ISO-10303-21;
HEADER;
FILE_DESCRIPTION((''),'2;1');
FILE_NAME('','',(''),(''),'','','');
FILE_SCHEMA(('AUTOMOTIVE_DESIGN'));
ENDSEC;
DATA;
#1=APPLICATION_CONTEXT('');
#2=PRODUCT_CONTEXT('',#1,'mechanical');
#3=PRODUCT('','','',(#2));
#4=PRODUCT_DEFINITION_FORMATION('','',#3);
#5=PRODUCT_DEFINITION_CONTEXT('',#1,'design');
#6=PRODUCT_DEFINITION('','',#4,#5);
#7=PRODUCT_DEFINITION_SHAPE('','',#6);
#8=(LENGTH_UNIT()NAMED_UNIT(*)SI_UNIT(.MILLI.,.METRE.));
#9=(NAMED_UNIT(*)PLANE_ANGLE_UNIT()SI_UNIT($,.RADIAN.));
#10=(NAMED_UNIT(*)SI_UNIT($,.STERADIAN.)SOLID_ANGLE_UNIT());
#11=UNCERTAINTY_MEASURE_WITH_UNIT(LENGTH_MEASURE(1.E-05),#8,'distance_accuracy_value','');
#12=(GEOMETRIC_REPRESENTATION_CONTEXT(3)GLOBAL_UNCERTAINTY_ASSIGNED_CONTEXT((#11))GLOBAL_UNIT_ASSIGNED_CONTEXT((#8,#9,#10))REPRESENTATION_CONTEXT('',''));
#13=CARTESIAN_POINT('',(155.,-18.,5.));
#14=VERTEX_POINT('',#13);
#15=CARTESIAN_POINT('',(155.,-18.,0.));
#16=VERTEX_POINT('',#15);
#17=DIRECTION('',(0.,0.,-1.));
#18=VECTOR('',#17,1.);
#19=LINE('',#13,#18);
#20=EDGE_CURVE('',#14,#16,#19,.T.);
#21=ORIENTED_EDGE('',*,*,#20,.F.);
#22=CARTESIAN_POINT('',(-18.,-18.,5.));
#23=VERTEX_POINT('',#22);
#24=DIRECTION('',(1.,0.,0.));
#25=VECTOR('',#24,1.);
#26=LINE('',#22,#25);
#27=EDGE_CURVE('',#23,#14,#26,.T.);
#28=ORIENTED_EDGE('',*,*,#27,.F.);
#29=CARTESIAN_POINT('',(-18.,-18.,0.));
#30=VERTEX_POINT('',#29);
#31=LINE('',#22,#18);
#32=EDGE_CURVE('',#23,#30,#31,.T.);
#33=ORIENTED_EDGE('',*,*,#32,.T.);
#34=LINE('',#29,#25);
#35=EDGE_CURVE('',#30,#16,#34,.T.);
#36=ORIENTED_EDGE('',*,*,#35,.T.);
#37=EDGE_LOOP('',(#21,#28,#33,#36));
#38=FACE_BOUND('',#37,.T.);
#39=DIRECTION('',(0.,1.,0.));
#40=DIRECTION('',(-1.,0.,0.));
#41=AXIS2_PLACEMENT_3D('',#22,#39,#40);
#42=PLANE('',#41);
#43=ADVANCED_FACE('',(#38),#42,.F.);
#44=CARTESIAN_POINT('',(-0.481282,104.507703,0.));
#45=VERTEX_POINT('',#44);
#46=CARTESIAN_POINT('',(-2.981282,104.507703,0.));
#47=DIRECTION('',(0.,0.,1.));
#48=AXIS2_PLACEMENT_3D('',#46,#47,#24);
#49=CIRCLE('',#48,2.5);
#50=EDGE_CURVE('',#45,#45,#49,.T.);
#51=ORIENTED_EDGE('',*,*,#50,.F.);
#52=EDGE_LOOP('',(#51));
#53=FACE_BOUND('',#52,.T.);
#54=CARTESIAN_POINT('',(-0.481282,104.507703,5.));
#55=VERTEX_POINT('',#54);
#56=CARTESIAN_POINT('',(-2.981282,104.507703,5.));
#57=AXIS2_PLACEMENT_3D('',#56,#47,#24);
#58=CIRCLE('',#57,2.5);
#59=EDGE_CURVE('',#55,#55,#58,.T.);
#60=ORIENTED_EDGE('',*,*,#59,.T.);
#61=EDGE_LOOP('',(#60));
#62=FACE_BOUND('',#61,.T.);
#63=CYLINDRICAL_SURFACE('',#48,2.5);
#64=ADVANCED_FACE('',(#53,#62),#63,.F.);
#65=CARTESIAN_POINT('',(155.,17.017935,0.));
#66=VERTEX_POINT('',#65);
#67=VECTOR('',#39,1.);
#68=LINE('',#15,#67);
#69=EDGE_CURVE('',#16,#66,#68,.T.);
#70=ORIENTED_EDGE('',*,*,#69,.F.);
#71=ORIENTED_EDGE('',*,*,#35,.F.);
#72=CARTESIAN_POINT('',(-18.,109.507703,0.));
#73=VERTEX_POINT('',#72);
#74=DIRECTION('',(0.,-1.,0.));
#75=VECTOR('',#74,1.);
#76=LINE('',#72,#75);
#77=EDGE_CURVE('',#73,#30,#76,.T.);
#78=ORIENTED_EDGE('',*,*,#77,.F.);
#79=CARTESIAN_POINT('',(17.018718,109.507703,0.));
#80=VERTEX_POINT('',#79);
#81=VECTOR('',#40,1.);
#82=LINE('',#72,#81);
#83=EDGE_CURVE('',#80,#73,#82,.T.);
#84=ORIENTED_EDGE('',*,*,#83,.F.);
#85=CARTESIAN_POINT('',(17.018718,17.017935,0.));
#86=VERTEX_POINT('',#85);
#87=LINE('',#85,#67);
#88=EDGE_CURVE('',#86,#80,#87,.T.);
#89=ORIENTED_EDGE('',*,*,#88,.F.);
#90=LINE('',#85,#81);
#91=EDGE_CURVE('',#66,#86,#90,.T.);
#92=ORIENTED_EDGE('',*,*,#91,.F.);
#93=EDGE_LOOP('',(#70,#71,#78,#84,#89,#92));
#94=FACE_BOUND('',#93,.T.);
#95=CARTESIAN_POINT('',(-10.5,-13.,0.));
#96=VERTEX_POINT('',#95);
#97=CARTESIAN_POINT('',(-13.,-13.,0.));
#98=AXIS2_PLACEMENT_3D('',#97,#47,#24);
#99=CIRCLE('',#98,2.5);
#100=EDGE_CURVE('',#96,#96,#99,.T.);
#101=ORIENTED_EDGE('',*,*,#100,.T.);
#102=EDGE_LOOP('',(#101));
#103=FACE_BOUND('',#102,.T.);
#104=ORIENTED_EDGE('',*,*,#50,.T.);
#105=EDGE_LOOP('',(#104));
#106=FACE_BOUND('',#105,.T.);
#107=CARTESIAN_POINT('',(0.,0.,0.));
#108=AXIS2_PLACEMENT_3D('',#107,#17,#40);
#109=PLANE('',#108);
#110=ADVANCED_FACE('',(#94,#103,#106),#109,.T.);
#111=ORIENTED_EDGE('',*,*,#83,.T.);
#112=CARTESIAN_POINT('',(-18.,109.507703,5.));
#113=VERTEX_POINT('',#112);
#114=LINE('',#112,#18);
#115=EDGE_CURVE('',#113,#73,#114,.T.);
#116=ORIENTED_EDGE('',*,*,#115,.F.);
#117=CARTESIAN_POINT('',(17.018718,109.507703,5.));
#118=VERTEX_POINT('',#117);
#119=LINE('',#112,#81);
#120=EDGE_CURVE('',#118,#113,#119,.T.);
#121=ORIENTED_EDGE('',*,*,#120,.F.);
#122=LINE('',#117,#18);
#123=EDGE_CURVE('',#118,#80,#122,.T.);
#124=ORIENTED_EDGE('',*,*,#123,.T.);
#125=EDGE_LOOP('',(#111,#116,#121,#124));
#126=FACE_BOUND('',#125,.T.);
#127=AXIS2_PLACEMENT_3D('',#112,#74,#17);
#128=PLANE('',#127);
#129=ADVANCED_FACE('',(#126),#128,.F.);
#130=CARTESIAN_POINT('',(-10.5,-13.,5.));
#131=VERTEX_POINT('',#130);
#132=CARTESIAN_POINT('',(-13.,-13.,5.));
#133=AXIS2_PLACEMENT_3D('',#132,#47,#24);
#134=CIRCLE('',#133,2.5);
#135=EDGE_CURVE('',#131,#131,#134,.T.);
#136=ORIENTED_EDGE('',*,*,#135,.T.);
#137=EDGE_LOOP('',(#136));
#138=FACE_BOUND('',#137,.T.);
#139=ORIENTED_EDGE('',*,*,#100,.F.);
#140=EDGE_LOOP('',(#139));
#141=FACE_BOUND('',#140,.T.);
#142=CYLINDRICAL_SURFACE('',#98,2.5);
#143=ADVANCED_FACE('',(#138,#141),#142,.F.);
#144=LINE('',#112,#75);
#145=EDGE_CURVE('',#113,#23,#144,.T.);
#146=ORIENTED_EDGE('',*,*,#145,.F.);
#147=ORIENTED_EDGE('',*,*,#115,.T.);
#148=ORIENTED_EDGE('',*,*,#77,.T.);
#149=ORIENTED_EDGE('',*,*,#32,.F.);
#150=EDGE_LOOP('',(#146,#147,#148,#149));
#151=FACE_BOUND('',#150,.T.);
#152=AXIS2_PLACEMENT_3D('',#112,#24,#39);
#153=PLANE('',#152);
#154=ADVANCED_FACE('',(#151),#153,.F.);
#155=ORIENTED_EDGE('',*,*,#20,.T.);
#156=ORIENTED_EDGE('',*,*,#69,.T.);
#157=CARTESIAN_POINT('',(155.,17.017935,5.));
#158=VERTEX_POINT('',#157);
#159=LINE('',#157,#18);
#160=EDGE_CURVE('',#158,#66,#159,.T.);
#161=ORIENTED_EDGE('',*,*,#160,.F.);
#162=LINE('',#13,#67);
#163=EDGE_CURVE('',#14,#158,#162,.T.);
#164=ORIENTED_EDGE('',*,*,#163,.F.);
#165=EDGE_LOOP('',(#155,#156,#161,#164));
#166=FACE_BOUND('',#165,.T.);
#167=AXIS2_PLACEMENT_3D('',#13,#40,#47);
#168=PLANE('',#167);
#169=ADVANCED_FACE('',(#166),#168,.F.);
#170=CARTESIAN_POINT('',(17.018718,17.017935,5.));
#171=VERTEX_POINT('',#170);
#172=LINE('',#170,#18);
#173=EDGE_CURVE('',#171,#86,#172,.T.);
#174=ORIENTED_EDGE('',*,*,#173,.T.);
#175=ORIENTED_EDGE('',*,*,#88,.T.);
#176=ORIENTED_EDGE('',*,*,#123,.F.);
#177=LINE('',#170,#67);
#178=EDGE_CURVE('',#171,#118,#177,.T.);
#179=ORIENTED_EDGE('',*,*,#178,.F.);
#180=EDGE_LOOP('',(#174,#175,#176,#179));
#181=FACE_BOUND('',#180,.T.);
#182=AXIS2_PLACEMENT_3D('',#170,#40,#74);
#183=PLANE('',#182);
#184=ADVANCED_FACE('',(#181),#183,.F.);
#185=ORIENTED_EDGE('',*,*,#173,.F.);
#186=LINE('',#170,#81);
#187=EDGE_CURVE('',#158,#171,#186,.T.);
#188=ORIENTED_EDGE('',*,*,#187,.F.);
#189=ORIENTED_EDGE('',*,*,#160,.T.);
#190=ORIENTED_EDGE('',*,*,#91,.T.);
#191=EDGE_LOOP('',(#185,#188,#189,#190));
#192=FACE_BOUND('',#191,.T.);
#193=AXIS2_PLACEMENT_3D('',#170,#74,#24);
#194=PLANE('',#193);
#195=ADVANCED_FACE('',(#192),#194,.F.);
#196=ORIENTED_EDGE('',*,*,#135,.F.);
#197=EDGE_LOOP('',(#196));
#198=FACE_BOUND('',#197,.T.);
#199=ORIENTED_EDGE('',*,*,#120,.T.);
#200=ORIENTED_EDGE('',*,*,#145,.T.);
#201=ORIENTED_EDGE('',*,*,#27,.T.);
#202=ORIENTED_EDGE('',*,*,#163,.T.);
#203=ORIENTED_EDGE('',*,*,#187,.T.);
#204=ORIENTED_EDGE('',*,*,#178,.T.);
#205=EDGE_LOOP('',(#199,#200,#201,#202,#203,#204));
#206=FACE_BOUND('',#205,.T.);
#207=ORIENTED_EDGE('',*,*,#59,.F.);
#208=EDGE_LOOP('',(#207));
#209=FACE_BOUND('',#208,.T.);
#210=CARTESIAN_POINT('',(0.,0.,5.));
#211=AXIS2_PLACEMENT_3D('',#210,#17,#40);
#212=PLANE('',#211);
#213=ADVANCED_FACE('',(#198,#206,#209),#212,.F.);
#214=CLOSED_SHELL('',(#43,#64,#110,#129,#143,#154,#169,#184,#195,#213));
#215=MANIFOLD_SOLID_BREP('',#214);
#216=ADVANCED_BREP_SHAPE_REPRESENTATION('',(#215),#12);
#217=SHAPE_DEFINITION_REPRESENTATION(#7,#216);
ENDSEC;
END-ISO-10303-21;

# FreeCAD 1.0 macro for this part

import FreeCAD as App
import Part
import Sketcher
from FreeCAD import Vector

doc = App.newDocument("Part")
body = doc.addObject("PartDesign::Body", "Body")

sketch1 = doc.addObject("Sketcher::SketchObject", "Sketch")
body.addObject(sketch1)
sketch1.AttachmentSupport = (doc.XY_Plane, [""])
sketch1.MapMode = "FlatFace"
sketch1.addGeometry([
    Part.LineSegment(Vector(17.018718, 109.507703, 0), Vector(-18, 109.507703, 0)),
    Part.LineSegment(Vector(-18, 109.507703, 0), Vector(-18, -18, 0)),
    Part.LineSegment(Vector(-18, -18, 0), Vector(155, -18, 0)),
    Part.LineSegment(Vector(155, -18, 0), Vector(155, 17.017935, 0)),
    Part.LineSegment(Vector(155, 17.017935, 0), Vector(17.018718, 17.017935, 0)),
    Part.LineSegment(Vector(17.018718, 17.017935, 0), Vector(17.018718, 109.507703, 0)),
], False)
sketch1.addConstraint([
    Sketcher.Constraint("Coincident", 0, 2, 1, 1),
    Sketcher.Constraint("Coincident", 1, 2, 2, 1),
    Sketcher.Constraint("Coincident", 2, 2, 3, 1),
    Sketcher.Constraint("Coincident", 3, 2, 4, 1),
    Sketcher.Constraint("Coincident", 4, 2, 5, 1),
    Sketcher.Constraint("Coincident", 5, 2, 0, 1),
    Sketcher.Constraint("Horizontal", 0),
    Sketcher.Constraint("Vertical", 1),
    Sketcher.Constraint("Horizontal", 2),
    Sketcher.Constraint("Vertical", 3),
    Sketcher.Constraint("Horizontal", 4),
    Sketcher.Constraint("Vertical", 5),
    Sketcher.Constraint("DistanceX", 2, 1, 2, 2, 173.0),
    Sketcher.Constraint("DistanceX", 0, 2, -1, 1, 18.0),
    Sketcher.Constraint("DistanceY", 1, 2, -1, 1, 18.0),
    Sketcher.Constraint("DistanceX", 0, 2, 0, 1, 35.018718),
    Sketcher.Constraint("DistanceY", 1, 2, 1, 1, 127.507703),
    Sketcher.Constraint("DistanceY", 3, 1, 3, 2, 35.017935),
])
pad1 = doc.addObject("PartDesign::Pad", "Pad")
body.addObject(pad1)
pad1.Profile = sketch1
pad1.Length = 5

sketch2 = doc.addObject("Sketcher::SketchObject", "Sketch001")
body.addObject(sketch2)
sketch2.AttachmentSupport = (doc.XY_Plane, [""])
sketch2.MapMode = "FlatFace"
sketch2.AttachmentOffset = App.Placement(Vector(0, 0, 5), App.Rotation())
sketch2.addGeometry([
    Part.Circle(Vector(-13, -13, 0), Vector(0, 0, 1), 2.5),
    Part.Circle(Vector(-2.981282, 104.507703, 0), Vector(0, 0, 1), 2.5),
], False)
sketch2.addConstraint([
    Sketcher.Constraint("Equal", 0, 1),
    Sketcher.Constraint("Diameter", 0, 5.0),
    Sketcher.Constraint("DistanceX", 0, 3, -1, 1, 13.0),
    Sketcher.Constraint("DistanceY", 0, 3, -1, 1, 13.0),
    Sketcher.Constraint("DistanceX", 1, 3, -1, 1, 2.981282),
    Sketcher.Constraint("DistanceY", -1, 1, 1, 3, 104.507703),
])
pocket1 = doc.addObject("PartDesign::Pocket", "Pocket")
body.addObject(pocket1)
pocket1.Profile = sketch2
pocket1.Type = "ThroughAll"

doc.recompute()
